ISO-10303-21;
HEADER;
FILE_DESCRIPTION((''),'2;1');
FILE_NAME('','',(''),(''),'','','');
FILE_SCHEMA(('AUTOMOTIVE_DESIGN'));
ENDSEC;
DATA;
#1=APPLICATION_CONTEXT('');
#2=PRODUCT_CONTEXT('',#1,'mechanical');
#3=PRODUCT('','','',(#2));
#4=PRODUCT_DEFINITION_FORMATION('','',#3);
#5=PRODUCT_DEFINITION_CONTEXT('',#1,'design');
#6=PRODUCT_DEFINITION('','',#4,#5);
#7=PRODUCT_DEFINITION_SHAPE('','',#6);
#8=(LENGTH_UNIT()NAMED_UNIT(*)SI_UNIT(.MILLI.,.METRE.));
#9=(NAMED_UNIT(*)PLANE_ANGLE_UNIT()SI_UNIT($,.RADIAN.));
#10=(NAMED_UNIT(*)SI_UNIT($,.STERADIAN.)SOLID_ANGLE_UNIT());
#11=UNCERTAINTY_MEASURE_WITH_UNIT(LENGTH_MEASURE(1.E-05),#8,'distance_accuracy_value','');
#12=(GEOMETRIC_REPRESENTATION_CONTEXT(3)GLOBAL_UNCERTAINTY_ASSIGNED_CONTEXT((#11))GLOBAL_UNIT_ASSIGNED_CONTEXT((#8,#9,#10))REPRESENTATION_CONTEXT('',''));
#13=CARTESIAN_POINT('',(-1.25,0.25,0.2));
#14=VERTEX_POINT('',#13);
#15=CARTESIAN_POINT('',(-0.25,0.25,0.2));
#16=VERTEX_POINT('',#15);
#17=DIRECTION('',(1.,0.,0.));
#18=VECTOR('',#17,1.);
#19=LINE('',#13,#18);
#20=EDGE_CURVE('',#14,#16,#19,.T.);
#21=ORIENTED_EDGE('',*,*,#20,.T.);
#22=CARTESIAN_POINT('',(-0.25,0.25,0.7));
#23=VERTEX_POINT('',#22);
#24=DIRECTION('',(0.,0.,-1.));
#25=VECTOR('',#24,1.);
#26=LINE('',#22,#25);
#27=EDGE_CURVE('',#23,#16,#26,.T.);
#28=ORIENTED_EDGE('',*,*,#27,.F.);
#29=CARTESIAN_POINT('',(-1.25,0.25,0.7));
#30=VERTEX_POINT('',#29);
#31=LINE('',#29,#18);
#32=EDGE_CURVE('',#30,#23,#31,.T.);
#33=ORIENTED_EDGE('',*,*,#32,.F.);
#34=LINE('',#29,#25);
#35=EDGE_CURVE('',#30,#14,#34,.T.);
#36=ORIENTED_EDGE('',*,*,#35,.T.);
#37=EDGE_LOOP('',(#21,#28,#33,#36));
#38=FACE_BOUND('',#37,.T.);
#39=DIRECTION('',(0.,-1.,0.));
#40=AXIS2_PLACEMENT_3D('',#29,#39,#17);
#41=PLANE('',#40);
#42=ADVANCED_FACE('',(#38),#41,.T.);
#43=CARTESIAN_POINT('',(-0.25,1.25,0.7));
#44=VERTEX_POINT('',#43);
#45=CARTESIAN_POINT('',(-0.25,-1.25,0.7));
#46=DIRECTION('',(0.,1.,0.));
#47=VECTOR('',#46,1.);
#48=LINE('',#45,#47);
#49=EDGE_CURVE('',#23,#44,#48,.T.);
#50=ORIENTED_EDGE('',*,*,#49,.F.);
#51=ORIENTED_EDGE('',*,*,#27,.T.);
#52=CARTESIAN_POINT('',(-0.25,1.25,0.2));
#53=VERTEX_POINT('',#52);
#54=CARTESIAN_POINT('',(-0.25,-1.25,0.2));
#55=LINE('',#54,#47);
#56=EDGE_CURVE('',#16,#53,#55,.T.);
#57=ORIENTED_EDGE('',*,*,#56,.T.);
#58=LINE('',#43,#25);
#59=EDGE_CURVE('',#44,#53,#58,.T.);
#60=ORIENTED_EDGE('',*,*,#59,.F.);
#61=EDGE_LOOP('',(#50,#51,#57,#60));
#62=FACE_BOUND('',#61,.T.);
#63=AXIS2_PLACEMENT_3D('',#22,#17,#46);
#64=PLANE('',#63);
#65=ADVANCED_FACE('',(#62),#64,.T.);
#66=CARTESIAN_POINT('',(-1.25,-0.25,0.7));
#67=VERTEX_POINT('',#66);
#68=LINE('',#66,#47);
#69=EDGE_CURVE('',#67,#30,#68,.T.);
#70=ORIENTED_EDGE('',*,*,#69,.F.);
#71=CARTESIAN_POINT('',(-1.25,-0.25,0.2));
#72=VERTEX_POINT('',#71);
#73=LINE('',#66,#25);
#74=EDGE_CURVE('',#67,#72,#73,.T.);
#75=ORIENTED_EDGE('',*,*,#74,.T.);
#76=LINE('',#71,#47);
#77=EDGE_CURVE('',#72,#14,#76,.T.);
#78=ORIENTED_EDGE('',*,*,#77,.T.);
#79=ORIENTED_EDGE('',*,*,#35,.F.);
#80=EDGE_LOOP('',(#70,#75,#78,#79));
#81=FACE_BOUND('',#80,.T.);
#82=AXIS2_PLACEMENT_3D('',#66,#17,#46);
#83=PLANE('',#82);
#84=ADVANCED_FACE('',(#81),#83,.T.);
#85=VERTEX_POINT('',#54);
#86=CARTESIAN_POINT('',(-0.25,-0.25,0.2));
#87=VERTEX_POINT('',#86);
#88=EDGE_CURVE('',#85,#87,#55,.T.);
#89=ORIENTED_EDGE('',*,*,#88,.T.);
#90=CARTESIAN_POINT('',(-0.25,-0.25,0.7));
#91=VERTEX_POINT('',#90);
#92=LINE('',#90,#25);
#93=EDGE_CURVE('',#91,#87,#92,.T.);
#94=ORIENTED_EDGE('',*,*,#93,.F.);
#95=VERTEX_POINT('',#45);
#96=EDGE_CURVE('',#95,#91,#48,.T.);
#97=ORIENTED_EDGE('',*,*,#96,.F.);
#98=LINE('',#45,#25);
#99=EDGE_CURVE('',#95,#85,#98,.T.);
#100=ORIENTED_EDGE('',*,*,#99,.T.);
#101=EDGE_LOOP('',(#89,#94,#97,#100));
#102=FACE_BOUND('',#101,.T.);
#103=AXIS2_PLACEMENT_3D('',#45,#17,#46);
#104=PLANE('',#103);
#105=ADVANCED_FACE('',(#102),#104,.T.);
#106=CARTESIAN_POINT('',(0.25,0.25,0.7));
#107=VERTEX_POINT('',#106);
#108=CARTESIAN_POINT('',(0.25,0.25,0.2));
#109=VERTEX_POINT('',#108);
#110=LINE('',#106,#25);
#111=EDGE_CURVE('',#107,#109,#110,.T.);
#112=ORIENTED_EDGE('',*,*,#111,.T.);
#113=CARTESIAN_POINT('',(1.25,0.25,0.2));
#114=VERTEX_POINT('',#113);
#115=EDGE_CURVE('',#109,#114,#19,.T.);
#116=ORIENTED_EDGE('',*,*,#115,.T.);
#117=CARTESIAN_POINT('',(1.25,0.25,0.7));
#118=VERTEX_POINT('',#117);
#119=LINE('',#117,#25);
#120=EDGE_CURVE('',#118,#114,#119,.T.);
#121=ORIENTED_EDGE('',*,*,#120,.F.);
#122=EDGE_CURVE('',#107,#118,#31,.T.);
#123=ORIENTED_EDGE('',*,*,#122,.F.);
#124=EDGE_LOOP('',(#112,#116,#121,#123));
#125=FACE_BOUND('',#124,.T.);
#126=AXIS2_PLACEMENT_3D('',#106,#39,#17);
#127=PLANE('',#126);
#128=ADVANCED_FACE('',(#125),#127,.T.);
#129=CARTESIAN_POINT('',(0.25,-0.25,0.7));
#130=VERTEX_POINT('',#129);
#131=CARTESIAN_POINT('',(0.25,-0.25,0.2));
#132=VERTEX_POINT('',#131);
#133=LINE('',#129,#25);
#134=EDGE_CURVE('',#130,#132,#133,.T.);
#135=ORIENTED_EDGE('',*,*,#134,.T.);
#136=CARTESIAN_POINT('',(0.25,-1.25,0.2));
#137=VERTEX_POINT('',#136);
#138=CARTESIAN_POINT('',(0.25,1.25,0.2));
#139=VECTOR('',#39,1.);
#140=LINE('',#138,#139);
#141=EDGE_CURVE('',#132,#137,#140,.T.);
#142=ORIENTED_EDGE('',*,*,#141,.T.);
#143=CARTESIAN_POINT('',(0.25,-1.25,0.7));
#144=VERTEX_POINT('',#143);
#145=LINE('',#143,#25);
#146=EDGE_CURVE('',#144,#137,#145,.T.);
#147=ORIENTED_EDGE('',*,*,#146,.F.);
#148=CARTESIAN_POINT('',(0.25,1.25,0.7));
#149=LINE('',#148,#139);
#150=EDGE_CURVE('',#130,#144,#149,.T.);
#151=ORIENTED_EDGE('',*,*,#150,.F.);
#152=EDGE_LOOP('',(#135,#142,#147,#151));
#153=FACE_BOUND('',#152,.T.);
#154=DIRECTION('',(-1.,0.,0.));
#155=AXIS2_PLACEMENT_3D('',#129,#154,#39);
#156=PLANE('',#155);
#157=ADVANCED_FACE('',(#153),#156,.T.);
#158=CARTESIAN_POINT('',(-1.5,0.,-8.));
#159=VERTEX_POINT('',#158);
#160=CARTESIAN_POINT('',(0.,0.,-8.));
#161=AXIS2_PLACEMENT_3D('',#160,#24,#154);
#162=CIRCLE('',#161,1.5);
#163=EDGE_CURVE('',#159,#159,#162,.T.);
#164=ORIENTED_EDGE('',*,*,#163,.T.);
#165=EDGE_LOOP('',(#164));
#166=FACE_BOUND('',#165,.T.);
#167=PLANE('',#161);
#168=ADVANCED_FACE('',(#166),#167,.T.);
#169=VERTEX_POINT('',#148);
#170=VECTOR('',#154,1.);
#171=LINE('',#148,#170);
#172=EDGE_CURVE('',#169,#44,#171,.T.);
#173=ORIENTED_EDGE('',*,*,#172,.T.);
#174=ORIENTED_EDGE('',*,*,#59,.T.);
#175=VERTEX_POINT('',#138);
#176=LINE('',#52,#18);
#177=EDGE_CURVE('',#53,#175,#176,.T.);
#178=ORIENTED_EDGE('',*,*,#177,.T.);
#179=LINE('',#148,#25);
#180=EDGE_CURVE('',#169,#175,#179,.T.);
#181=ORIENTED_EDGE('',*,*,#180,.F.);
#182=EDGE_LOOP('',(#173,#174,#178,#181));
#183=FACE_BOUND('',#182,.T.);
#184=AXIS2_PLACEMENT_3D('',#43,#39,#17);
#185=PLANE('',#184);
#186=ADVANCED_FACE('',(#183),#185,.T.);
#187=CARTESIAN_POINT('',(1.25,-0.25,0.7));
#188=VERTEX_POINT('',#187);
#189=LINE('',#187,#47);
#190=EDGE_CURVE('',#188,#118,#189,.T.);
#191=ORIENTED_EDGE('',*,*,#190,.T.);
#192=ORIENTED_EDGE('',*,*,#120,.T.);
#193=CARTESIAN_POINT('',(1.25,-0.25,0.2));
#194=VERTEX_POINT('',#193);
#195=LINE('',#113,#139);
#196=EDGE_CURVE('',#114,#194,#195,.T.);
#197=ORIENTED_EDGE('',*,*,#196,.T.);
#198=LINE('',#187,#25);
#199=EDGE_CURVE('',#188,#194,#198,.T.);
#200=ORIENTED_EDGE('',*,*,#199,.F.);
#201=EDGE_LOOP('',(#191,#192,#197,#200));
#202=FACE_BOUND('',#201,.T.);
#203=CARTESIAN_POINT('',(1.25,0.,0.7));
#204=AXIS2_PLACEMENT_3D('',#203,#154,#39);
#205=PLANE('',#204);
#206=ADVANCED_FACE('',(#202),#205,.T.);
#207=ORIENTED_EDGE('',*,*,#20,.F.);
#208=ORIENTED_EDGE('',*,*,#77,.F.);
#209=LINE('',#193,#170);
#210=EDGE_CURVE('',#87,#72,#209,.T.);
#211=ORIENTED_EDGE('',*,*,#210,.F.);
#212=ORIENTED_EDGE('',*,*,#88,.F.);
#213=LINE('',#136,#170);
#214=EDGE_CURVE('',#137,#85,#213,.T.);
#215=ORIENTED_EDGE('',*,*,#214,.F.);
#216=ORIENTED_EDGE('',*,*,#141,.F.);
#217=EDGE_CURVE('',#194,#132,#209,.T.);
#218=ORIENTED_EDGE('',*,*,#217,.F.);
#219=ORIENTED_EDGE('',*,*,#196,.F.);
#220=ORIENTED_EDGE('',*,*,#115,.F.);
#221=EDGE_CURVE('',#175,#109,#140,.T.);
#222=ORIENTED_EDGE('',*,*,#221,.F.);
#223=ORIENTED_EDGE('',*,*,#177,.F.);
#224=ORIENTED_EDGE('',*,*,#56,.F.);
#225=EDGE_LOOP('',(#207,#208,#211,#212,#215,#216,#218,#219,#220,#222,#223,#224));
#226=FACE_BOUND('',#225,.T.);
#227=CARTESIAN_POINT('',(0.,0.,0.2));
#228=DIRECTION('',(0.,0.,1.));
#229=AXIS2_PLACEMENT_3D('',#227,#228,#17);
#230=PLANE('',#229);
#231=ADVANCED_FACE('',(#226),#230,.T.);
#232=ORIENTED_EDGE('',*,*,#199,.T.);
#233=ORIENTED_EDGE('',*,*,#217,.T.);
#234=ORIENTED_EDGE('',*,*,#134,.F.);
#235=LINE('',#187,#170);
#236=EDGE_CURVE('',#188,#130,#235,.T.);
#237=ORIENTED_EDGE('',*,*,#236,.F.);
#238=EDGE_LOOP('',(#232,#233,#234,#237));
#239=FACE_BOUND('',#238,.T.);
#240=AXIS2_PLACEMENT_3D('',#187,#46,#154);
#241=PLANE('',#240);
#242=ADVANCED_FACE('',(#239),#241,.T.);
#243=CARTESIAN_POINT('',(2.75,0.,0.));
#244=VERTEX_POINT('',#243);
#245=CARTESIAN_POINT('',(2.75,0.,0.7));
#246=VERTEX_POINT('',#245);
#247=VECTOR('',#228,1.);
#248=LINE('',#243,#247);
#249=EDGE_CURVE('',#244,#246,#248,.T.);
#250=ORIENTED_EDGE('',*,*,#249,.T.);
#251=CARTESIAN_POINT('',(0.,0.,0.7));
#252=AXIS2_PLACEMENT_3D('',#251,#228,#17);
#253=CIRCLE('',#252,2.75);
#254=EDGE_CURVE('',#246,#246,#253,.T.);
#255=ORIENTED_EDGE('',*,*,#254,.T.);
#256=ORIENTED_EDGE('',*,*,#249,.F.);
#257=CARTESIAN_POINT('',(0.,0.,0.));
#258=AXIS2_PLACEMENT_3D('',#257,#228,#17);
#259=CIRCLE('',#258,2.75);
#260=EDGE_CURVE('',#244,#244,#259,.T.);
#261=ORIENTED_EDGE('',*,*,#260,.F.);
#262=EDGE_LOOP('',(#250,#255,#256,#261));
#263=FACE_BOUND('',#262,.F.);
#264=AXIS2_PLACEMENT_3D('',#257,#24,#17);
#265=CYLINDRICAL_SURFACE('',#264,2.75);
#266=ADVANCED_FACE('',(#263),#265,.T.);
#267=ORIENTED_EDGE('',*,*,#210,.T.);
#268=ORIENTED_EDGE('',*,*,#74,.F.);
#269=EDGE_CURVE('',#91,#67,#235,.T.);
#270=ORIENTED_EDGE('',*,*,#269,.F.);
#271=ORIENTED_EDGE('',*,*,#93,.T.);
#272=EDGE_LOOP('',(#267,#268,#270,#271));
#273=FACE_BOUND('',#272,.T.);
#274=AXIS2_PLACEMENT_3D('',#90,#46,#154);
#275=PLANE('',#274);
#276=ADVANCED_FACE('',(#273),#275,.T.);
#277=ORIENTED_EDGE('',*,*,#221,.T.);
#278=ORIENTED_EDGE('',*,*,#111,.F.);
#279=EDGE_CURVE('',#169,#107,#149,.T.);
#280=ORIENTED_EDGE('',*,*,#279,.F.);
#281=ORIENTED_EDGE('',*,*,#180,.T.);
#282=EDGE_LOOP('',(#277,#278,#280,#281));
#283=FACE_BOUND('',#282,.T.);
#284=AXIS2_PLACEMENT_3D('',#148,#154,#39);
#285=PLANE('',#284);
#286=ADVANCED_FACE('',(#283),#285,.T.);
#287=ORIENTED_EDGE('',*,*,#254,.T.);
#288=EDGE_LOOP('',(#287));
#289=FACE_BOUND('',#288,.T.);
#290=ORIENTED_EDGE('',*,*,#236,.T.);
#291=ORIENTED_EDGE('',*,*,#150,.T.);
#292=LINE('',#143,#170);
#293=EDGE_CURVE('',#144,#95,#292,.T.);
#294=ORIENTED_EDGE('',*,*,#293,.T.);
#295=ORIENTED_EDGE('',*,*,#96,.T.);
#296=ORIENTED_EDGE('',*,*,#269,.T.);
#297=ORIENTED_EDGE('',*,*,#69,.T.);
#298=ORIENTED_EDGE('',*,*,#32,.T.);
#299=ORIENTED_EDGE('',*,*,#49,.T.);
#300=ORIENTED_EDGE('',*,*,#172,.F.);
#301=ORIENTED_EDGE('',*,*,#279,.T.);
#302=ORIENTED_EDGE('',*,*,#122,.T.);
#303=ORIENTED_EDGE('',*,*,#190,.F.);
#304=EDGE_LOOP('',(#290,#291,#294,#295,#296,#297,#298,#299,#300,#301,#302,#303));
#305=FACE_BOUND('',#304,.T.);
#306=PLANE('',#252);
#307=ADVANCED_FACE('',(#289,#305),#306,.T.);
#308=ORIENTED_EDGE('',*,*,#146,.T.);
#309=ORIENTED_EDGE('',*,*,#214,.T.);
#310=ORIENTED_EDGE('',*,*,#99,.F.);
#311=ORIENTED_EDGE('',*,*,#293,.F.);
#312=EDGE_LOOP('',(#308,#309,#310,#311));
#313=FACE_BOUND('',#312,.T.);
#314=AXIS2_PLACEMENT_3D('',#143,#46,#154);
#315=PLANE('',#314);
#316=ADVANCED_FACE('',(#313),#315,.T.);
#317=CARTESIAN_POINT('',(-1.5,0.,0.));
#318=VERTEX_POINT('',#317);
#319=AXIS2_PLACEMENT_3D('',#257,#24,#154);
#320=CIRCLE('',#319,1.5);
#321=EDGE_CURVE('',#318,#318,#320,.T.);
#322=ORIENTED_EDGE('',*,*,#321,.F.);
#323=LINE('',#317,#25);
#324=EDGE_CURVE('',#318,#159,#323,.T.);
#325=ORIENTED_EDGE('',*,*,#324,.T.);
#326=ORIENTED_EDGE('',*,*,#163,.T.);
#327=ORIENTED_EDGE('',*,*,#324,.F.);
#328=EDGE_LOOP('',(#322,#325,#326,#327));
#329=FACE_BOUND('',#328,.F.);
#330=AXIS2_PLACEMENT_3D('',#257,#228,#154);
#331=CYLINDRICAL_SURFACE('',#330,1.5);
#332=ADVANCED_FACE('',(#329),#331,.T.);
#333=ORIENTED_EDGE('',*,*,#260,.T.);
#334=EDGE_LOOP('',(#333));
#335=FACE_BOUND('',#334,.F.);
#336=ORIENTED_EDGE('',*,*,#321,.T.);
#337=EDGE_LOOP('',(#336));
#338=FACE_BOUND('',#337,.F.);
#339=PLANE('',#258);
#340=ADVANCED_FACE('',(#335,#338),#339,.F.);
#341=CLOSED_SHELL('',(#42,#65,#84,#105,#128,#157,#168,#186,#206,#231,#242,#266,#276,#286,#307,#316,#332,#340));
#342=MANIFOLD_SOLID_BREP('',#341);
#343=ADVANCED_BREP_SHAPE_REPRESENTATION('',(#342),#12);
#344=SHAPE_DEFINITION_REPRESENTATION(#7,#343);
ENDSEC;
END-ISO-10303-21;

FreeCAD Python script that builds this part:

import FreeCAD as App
import Part
import Sketcher


def add_polygon(sketch, points):
    """Adds a closed chain of lines whose ends are joined by coincident constraints."""
    first, n = sketch.GeometryCount, len(points)
    for a, b in zip(points, points[1:] + points[:1]):
        sketch.addGeometry(Part.LineSegment(App.Vector(*a, 0), App.Vector(*b, 0)), False)
    for i in range(n):
        sketch.addConstraint(Sketcher.Constraint("Coincident", first + i, 2, first + (i + 1) % n, 1))

doc = App.newDocument("Part")
body = doc.addObject("PartDesign::Body", "Body")

sketch1 = body.newObject("Sketcher::SketchObject", "Sketch")
sketch1.AttachmentSupport = (doc.getObject("XY_Plane"), [""])
sketch1.MapMode = "FlatFace"
sketch1.addGeometry(Part.Circle(App.Vector(0, 0, 0), App.Vector(0, 0, 1), 2.75), False)
sketch1.addConstraint([
    Sketcher.Constraint("Coincident", 0, 3, -1, 1),
    Sketcher.Constraint("Diameter", 0, 5.5),
])
pad1 = body.newObject("PartDesign::Pad", "Pad")
pad1.Profile = sketch1
pad1.Length = 0.7

sketch2 = body.newObject("Sketcher::SketchObject", "Sketch001")
sketch2.AttachmentSupport = (doc.getObject("XY_Plane"), [""])
sketch2.MapMode = "FlatFace"
sketch2.addGeometry(Part.Circle(App.Vector(0, 0, 0), App.Vector(0, 0, 1), 1.5), False)
sketch2.addConstraint([
    Sketcher.Constraint("Coincident", 0, 3, -1, 1),
    Sketcher.Constraint("Diameter", 0, 3.0),
])
pad2 = body.newObject("PartDesign::Pad", "Pad001")
pad2.Profile = sketch2
pad2.Length = 8
pad2.Reversed = True

sketch3 = body.newObject("Sketcher::SketchObject", "Sketch002")
sketch3.AttachmentSupport = (doc.getObject("XY_Plane"), [""])
sketch3.MapMode = "FlatFace"
sketch3.AttachmentOffset = App.Placement(App.Vector(0, 0, 0.7), App.Rotation())
add_polygon(sketch3, [(-0.25, 0.25), (-1.25, 0.25), (-1.25, -0.25), (-0.25, -0.25), (-0.25, -1.25), (0.25, -1.25), (0.25, -0.25), (1.25, -0.25), (1.25, 0.25), (0.25, 0.25), (0.25, 1.25), (-0.25, 1.25)])
sketch3.addConstraint([
    Sketcher.Constraint("Horizontal", 0),
    Sketcher.Constraint("Vertical", 1),
    Sketcher.Constraint("Horizontal", 2),
    Sketcher.Constraint("Vertical", 3),
    Sketcher.Constraint("Horizontal", 4),
    Sketcher.Constraint("Vertical", 5),
    Sketcher.Constraint("Horizontal", 6),
    Sketcher.Constraint("Vertical", 7),
    Sketcher.Constraint("Horizontal", 8),
    Sketcher.Constraint("Vertical", 9),
    Sketcher.Constraint("Horizontal", 10),
    Sketcher.Constraint("Vertical", 11),
    Sketcher.Constraint("Symmetric", 0, 2, 6, 2, -1, 1),
    Sketcher.Constraint("Symmetric", 2, 2, 8, 2, -1, 1),
    Sketcher.Constraint("Symmetric", 4, 2, 10, 2, -1, 1),
    Sketcher.Constraint("Symmetric", 2, 2, 5, 2, -2),
    Sketcher.Constraint("Equal", 10, 1),
    Sketcher.Constraint("Equal", 8, 3),
    Sketcher.Constraint("DistanceX", 4, 1, 4, 2, 0.5),
    Sketcher.Constraint("DistanceX", 1, 2, 6, 2, 2.5),
])
pocket1 = body.newObject("PartDesign::Pocket", "Pocket")
pocket1.Profile = sketch3
pocket1.Length = 0.5

doc.recompute()
